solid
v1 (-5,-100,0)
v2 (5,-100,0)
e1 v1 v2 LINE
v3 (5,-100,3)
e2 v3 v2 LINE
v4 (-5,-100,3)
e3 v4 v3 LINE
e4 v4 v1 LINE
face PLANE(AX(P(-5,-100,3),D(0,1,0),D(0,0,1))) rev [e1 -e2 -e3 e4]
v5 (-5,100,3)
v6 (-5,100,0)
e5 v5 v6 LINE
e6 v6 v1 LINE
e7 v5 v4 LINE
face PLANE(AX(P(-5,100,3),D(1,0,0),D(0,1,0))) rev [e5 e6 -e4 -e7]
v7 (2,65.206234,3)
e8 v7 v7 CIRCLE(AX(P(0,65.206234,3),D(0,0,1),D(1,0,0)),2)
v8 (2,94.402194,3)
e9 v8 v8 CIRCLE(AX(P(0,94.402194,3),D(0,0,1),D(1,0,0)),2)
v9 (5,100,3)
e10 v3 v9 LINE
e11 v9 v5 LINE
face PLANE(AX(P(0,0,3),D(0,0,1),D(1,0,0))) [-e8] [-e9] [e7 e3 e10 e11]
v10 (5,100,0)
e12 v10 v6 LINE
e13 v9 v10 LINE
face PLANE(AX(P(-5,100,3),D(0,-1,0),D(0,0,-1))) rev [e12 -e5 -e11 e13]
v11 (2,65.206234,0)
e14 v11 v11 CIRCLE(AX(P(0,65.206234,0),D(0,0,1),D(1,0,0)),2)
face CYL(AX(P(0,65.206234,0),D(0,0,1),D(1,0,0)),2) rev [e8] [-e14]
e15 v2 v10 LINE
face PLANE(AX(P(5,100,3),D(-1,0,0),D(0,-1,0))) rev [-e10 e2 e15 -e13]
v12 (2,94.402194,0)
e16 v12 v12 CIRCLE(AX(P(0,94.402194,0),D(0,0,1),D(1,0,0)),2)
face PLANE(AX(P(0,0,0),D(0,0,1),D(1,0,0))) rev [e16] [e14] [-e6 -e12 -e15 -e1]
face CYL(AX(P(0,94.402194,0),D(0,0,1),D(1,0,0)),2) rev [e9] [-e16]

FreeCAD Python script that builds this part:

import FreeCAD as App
import Part
import Sketcher
from FreeCAD import Vector

doc = App.newDocument("Part")
body = doc.addObject("PartDesign::Body", "Body")

# Sketch on XY plane
sketch1 = body.newObject("Sketcher::SketchObject", "Sketch")
sketch1.AttachmentSupport = (doc.getObject("XY_Plane"), [""])
sketch1.MapMode = "FlatFace"
sketch1.addGeometry([
    Part.LineSegment(Vector(-5, 100, 0), Vector(-5, -100, 0)),
    Part.LineSegment(Vector(-5, -100, 0), Vector(5, -100, 0)),
    Part.LineSegment(Vector(5, -100, 0), Vector(5, 100, 0)),
    Part.LineSegment(Vector(5, 100, 0), Vector(-5, 100, 0)),
], False)
sketch1.addConstraint([
    Sketcher.Constraint("Coincident", 0, 2, 1, 1),
    Sketcher.Constraint("Coincident", 1, 2, 2, 1),
    Sketcher.Constraint("Coincident", 2, 2, 3, 1),
    Sketcher.Constraint("Coincident", 3, 2, 0, 1),
    Sketcher.Constraint("Vertical", 0),
    Sketcher.Constraint("Horizontal", 1),
    Sketcher.Constraint("Vertical", 2),
    Sketcher.Constraint("Horizontal", 3),
    Sketcher.Constraint("Symmetric", 0, 2, 2, 2, -1, 1),
    Sketcher.Constraint("DistanceX", 1, 1, 1, 2, 10.0),
    Sketcher.Constraint("DistanceY", 0, 2, 0, 1, 200.0),
])
pad1 = body.newObject("PartDesign::Pad", "Pad")
pad1.Profile = sketch1
pad1.Length = 3

# Sketch on XY plane
sketch2 = body.newObject("Sketcher::SketchObject", "Sketch001")
sketch2.AttachmentSupport = (doc.getObject("XY_Plane"), [""])
sketch2.MapMode = "FlatFace"
sketch2.AttachmentOffset = App.Placement(Vector(0, 0, 3), App.Rotation())
sketch2.addGeometry([
    Part.Circle(Vector(0, 94.4, 0), Vector(0, 0, 1), 2),
    Part.Circle(Vector(0, 65.2, 0), Vector(0, 0, 1), 2),
], False)
sketch2.addConstraint([
    Sketcher.Constraint("Equal", 0, 1),
    Sketcher.Constraint("PointOnObject", 0, 3, -2),
    Sketcher.Constraint("PointOnObject", 1, 3, -2),
    Sketcher.Constraint("Diameter", 0, 4.0),
    Sketcher.Constraint("DistanceY", 1, 3, 0, 3, 29.195959),
    Sketcher.Constraint("DistanceY", -1, 1, 0, 3, 94.402194),
])
pocket1 = body.newObject("PartDesign::Pocket", "Pocket")
pocket1.Profile = sketch2
pocket1.Length = 3

doc.recompute()
